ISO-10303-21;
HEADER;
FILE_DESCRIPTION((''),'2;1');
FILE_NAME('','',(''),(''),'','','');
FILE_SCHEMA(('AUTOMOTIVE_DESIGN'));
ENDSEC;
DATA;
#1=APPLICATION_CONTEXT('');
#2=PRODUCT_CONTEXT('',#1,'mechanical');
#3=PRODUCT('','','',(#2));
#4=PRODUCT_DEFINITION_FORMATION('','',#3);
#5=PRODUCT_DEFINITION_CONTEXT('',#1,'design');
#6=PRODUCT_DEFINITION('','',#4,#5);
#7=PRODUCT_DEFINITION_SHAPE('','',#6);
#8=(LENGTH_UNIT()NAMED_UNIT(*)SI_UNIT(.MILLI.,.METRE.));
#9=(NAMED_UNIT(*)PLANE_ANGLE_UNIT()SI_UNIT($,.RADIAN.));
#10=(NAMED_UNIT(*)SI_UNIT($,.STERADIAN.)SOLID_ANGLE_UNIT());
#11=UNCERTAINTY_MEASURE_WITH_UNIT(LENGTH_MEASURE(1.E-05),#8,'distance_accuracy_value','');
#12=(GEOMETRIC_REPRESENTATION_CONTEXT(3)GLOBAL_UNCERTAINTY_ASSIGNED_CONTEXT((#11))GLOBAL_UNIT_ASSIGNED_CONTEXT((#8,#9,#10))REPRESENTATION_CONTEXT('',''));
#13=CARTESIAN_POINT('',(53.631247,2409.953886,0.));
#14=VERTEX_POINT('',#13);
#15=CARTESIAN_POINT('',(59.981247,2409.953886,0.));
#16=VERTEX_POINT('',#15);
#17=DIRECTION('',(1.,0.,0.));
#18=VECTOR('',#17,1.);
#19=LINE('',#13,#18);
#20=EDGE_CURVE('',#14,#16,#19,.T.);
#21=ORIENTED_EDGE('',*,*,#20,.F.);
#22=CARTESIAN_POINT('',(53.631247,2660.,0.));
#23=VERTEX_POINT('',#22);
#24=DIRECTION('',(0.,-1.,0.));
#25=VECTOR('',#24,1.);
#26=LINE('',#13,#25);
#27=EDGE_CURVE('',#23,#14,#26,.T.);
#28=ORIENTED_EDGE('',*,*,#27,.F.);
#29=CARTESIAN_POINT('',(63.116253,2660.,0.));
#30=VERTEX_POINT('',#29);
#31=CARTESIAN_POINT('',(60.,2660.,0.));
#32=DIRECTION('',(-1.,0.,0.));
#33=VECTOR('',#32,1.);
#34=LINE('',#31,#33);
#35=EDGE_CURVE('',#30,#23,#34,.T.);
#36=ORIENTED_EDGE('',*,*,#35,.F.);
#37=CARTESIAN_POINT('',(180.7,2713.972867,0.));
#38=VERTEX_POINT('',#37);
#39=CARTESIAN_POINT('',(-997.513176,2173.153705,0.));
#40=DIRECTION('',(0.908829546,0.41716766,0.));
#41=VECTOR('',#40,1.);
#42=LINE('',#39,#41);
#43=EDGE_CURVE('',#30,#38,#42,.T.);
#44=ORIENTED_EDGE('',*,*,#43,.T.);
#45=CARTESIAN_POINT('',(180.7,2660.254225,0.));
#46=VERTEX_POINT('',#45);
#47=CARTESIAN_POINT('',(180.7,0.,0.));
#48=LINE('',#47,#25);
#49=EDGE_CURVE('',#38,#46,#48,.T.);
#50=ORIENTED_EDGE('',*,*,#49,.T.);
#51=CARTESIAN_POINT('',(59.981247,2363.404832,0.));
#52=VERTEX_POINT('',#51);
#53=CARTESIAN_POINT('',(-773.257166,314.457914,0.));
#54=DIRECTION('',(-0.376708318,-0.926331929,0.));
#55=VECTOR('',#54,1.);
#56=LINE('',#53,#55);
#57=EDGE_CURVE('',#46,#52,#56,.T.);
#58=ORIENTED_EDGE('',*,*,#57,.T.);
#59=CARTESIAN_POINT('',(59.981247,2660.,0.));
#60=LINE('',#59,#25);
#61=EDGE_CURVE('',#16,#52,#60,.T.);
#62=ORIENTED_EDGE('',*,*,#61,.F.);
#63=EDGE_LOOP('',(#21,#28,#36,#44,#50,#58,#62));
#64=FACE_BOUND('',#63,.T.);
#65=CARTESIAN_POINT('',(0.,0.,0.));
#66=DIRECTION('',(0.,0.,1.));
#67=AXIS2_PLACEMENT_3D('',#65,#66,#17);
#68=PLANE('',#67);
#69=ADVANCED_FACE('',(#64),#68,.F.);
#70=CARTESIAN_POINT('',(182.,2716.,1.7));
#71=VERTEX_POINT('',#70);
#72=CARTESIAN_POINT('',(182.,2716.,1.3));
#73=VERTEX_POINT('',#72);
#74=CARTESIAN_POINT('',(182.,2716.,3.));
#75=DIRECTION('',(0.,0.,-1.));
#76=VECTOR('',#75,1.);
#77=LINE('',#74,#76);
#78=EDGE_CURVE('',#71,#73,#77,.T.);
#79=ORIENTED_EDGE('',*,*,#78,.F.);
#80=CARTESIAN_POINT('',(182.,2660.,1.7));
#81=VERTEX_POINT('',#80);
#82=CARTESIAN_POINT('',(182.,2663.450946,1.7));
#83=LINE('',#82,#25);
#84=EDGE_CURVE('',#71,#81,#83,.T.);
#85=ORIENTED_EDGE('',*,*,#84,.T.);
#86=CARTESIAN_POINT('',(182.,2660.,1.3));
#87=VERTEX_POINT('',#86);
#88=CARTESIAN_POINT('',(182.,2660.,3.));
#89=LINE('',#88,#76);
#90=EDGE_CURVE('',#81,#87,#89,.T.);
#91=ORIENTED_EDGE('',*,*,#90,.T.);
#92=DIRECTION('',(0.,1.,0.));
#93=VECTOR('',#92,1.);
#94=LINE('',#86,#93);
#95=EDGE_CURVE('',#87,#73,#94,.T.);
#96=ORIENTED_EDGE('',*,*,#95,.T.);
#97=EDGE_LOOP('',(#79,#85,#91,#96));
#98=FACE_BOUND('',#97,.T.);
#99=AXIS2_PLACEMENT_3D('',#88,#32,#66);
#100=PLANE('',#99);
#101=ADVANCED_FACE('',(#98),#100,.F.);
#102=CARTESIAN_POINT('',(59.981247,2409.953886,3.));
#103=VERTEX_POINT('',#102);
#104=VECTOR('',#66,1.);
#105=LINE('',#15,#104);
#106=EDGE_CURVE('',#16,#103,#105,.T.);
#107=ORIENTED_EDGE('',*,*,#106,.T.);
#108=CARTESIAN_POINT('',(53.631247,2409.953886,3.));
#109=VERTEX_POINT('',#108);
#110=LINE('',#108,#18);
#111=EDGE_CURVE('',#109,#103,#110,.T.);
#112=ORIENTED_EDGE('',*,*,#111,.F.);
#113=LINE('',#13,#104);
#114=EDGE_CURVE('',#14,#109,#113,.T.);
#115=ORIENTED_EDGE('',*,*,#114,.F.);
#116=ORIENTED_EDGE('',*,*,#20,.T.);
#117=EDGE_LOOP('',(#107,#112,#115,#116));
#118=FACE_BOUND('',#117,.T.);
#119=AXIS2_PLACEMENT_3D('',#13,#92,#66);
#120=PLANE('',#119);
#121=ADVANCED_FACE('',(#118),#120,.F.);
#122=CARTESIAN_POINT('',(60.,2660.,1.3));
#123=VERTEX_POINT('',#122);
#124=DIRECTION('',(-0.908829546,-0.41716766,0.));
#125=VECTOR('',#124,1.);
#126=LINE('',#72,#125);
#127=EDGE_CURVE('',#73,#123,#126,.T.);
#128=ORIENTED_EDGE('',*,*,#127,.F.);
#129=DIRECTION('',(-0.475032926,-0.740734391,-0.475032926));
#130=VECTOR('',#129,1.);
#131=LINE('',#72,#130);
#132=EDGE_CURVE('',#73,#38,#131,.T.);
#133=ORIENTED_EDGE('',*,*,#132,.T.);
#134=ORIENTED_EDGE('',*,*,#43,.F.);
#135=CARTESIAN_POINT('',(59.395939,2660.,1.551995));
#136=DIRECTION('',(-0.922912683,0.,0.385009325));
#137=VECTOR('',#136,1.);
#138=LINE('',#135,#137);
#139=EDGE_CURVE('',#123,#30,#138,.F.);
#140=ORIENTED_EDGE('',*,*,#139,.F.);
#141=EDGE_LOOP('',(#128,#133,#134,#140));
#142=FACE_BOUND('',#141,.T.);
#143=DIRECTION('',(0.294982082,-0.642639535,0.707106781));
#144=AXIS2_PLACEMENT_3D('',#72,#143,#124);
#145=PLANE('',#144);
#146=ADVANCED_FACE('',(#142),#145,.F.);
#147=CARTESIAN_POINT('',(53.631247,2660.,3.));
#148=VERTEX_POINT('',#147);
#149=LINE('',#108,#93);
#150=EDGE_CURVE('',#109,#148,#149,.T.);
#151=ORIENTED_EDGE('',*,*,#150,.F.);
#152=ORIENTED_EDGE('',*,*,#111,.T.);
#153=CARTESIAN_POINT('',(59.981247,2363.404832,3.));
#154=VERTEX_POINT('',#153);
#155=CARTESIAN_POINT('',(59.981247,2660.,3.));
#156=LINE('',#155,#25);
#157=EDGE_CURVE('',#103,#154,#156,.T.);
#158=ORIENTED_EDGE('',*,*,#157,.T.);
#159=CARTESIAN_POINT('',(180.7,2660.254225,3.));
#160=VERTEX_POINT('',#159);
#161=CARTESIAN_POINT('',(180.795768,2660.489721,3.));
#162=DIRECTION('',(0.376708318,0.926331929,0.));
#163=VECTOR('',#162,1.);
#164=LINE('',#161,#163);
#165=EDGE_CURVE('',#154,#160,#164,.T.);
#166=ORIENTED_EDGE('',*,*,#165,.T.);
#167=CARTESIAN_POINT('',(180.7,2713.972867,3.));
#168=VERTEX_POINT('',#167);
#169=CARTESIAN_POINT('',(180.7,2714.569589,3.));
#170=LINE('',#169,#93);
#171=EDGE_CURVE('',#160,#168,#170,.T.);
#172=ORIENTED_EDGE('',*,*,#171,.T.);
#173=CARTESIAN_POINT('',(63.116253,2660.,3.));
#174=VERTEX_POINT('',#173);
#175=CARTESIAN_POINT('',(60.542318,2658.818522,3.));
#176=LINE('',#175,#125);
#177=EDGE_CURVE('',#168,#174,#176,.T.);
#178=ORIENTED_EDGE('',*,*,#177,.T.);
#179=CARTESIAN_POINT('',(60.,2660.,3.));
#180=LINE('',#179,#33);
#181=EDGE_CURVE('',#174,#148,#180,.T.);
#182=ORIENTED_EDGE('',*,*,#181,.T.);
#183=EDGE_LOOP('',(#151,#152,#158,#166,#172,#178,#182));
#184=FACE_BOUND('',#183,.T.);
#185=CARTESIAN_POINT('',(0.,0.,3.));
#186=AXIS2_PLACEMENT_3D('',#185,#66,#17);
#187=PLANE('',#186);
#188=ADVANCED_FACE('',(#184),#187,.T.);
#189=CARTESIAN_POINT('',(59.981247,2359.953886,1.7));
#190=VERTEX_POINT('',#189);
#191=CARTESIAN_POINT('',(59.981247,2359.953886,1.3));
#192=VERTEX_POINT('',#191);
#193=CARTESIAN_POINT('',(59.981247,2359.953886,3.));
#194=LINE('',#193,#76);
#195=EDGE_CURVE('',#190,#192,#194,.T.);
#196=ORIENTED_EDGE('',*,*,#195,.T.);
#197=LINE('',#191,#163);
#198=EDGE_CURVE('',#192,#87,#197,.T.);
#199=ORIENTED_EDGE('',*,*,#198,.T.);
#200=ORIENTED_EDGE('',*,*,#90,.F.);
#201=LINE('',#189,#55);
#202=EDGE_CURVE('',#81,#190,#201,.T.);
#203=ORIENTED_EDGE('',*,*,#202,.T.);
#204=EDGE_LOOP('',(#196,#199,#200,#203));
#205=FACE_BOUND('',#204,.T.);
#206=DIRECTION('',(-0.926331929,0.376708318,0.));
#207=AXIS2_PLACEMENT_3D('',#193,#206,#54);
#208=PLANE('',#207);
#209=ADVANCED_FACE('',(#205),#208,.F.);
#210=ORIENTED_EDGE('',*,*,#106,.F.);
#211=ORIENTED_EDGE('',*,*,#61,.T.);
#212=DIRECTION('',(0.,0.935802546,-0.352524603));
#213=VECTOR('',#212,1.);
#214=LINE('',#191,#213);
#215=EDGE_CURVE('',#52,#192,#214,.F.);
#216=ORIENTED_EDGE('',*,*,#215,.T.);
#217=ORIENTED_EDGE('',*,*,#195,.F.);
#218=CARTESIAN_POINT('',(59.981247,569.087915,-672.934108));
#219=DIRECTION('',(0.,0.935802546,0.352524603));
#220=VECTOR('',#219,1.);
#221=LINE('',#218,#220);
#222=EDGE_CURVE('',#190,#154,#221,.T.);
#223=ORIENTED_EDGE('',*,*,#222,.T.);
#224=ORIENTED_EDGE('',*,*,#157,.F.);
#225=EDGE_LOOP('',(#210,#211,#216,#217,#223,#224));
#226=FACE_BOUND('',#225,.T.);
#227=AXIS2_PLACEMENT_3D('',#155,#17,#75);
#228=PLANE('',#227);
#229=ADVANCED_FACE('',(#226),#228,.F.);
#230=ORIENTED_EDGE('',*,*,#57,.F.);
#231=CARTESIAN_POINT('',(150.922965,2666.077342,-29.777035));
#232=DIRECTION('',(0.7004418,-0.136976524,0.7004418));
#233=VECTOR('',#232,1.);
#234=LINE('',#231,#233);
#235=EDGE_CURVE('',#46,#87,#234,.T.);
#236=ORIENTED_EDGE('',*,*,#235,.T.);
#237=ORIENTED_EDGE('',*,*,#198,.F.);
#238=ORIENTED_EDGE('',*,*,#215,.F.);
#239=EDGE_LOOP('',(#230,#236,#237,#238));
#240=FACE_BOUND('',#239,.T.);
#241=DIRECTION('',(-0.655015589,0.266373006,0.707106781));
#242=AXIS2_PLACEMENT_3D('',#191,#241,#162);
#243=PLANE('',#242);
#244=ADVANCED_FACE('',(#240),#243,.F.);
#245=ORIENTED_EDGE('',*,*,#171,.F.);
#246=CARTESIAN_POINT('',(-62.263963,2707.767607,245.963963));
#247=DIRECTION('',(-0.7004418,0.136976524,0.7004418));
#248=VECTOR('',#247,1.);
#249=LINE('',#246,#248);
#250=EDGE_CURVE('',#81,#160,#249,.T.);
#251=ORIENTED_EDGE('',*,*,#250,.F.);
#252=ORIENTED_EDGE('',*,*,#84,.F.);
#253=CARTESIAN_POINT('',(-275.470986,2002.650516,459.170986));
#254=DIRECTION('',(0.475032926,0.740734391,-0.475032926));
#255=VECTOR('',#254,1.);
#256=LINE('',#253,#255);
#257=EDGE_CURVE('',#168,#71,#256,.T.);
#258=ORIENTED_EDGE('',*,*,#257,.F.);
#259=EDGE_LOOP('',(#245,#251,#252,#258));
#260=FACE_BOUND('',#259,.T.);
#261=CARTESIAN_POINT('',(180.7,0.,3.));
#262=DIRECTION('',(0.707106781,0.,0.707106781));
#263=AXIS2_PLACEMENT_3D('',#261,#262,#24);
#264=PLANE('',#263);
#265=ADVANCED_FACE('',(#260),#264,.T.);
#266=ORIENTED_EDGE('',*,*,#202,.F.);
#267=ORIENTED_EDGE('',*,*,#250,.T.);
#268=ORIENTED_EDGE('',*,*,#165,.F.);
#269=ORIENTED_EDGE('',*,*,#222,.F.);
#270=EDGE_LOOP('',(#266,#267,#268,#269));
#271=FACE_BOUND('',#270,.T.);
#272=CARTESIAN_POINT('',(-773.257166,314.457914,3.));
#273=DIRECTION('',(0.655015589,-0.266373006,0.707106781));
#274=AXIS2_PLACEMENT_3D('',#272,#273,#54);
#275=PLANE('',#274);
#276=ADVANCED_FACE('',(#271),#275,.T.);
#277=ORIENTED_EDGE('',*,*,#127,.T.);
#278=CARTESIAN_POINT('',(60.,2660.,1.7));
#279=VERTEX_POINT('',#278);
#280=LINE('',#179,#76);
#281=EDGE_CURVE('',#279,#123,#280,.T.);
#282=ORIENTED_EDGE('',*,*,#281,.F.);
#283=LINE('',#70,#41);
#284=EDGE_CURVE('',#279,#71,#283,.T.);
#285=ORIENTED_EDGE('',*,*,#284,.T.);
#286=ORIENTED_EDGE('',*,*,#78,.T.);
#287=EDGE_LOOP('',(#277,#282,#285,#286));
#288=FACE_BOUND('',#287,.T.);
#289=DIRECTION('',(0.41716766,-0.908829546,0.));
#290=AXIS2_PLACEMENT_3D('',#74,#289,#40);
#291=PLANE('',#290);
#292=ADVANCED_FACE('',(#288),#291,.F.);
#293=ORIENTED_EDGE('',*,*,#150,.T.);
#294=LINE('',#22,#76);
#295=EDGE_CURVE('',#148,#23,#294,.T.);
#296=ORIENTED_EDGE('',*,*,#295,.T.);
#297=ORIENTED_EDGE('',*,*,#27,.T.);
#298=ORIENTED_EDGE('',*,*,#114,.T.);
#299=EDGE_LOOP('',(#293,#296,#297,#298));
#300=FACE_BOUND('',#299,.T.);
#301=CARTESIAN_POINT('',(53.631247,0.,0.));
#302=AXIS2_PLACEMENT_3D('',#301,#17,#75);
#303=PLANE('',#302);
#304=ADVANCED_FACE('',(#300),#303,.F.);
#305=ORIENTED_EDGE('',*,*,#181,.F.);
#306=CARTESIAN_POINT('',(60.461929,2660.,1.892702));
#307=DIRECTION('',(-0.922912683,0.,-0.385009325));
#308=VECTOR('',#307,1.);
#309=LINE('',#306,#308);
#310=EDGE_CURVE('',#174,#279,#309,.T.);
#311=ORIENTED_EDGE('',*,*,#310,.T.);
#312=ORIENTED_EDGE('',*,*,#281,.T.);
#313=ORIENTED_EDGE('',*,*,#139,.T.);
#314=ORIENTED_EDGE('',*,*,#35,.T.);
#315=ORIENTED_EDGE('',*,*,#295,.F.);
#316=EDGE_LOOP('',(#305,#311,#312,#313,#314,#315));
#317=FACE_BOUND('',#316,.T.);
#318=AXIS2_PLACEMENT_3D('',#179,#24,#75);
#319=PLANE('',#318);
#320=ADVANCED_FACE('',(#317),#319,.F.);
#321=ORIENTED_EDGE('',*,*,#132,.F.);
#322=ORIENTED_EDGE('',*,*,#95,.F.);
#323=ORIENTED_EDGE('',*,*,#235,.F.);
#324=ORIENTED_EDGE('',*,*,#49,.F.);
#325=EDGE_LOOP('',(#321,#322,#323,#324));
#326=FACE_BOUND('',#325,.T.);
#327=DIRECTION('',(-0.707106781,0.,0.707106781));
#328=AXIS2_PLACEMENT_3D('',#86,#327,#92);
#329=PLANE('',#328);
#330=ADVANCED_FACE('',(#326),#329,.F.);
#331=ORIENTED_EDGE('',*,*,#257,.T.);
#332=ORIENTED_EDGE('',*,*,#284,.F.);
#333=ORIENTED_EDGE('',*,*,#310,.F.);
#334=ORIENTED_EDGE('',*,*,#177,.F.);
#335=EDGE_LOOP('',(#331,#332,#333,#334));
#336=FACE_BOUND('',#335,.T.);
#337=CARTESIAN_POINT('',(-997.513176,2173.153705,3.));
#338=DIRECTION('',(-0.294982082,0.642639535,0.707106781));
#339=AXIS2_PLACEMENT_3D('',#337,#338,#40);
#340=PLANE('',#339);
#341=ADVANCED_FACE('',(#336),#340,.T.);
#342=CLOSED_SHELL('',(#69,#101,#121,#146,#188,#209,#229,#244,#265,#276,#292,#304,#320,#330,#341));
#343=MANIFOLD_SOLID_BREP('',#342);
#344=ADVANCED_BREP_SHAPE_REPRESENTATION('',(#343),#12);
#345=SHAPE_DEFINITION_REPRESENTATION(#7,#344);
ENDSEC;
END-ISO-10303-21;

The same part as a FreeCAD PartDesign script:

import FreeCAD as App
import Part
import Sketcher


def edges_at(feature, points):
    """Names of the edges that pass closest to the given points."""
    edges = feature.Shape.Edges
    near = lambda p: min(range(len(edges)), key=lambda i: edges[i].distToShape(Part.Vertex(*p))[0])
    return sorted({f"Edge{near(p) + 1}" for p in points})


def add_polygon(sketch, points):
    """Adds a closed chain of lines whose ends are joined by coincident constraints."""
    first, n = sketch.GeometryCount, len(points)
    for a, b in zip(points, points[1:] + points[:1]):
        sketch.addGeometry(Part.LineSegment(App.Vector(*a, 0), App.Vector(*b, 0)), False)
    for i in range(n):
        sketch.addConstraint(Sketcher.Constraint("Coincident", first + i, 2, first + (i + 1) % n, 1))

doc = App.newDocument("Part")
params = doc.addObject("Spreadsheet::Sheet", "Params")
for row, (alias, value) in enumerate([
    ("sketch1_height", "56 mm"),
    ("pad1_length", "3 mm"),
    ("sketch2_height", "3 mm"),
    ("pad2_length", "6.35 mm"),
    ("chamfer_size", "1.3 mm"),
    ("chamfer2_size", "1.3 mm"),
    ("chamfer3_size", "1.3 mm"),
], start=1):
    params.set(f"A{row}", alias)
    params.set(f"B{row}", "=" + value)
    params.setAlias(f"B{row}", alias)

body = doc.addObject("PartDesign::Body", "Body")

# Sketch on XY plane
sketch1 = body.newObject("Sketcher::SketchObject", "Sketch")
sketch1.AttachmentSupport = (doc.getObject("XY_Plane"), [""])
sketch1.MapMode = "FlatFace"
add_polygon(sketch1, [(60, 2660), (59.981247, 2660), (59.981247, 2359.953886), (182, 2660), (182, 2716)])  # lines 0-4
sketch1.addConstraint(Sketcher.Constraint("Horizontal", 0))
sketch1.addConstraint(Sketcher.Constraint("Vertical", 1))
sketch1.addConstraint(Sketcher.Constraint("Vertical", 3))
sketch1.addConstraint(Sketcher.Constraint("Horizontal", 0, 2, 2, 2))
sketch1.addConstraint(Sketcher.Constraint("DistanceY", 3, 1, 3, 2, 56.0))
sketch1.addConstraint(Sketcher.Constraint("DistanceY", -1, 1, 0, 2, 2660.0))
sketch1.addConstraint(Sketcher.Constraint("DistanceX", -1, 1, 2, 2, 182.0))
sketch1.addConstraint(Sketcher.Constraint("DistanceX", -1, 1, 4, 2, 60.0))
sketch1.addConstraint(Sketcher.Constraint("DistanceX", 0, 2, 0, 1, 0.018753))
sketch1.addConstraint(Sketcher.Constraint("DistanceY", 1, 2, 1, 1, 300.046114))
sketch1.setExpression("Constraints[9]", "Params.sketch1_height")
pad1 = body.newObject("PartDesign::Pad", "Pad")
pad1.Profile = sketch1
pad1.setExpression("Length", "Params.pad1_length")

# Sketch on YZ plane
sketch2 = body.newObject("Sketcher::SketchObject", "Sketch001")
sketch2.AttachmentSupport = (doc.getObject("YZ_Plane"), [""])
sketch2.MapMode = "FlatFace"
sketch2.AttachmentOffset = App.Placement(App.Vector(0, 0, 59.981247), App.Rotation())
add_polygon(sketch2, [(2660, 0), (2409.953886, 0), (2409.953886, 3), (2660, 3)])  # lines 0-3
sketch2.addConstraint(Sketcher.Constraint("Horizontal", 0))
sketch2.addConstraint(Sketcher.Constraint("Vertical", 1))
sketch2.addConstraint(Sketcher.Constraint("Horizontal", 2))
sketch2.addConstraint(Sketcher.Constraint("Vertical", 3))
sketch2.addConstraint(Sketcher.Constraint("PointOnObject", 0, 2, -1))
sketch2.addConstraint(Sketcher.Constraint("DistanceY", 1, 1, 1, 2, 3.0))
sketch2.addConstraint(Sketcher.Constraint("DistanceX", -1, 1, 2, 2, 2660.0))
sketch2.addConstraint(Sketcher.Constraint("DistanceX", 0, 2, 0, 1, 250.046114))
sketch2.setExpression("Constraints[9]", "Params.sketch2_height")
pad2 = body.newObject("PartDesign::Pad", "Pad001")
pad2.Profile = sketch2
pad2.setExpression("Length", "Params.pad2_length")
pad2.Reversed = True
doc.recompute()

chamfer = body.newObject("PartDesign::Chamfer", "Chamfer")
chamfer.Base = (pad2, edges_at(pad2, [(120.991, 2509.977, 3), (120.991, 2509.977, 0)]))
chamfer.setExpression("Size", "Params.chamfer_size")
doc.recompute()

chamfer2 = body.newObject("PartDesign::Chamfer", "Chamfer001")
chamfer2.Base = (chamfer, edges_at(chamfer, [(121, 2688, 3), (121, 2688, 0)]))
chamfer2.setExpression("Size", "Params.chamfer2_size")
doc.recompute()

chamfer3 = body.newObject("PartDesign::Chamfer", "Chamfer002")
chamfer3.Base = (chamfer2, edges_at(chamfer2, [(182, 2689.01, 0), (182, 2689.01, 3)]))
chamfer3.setExpression("Size", "Params.chamfer3_size")

doc.recompute()
